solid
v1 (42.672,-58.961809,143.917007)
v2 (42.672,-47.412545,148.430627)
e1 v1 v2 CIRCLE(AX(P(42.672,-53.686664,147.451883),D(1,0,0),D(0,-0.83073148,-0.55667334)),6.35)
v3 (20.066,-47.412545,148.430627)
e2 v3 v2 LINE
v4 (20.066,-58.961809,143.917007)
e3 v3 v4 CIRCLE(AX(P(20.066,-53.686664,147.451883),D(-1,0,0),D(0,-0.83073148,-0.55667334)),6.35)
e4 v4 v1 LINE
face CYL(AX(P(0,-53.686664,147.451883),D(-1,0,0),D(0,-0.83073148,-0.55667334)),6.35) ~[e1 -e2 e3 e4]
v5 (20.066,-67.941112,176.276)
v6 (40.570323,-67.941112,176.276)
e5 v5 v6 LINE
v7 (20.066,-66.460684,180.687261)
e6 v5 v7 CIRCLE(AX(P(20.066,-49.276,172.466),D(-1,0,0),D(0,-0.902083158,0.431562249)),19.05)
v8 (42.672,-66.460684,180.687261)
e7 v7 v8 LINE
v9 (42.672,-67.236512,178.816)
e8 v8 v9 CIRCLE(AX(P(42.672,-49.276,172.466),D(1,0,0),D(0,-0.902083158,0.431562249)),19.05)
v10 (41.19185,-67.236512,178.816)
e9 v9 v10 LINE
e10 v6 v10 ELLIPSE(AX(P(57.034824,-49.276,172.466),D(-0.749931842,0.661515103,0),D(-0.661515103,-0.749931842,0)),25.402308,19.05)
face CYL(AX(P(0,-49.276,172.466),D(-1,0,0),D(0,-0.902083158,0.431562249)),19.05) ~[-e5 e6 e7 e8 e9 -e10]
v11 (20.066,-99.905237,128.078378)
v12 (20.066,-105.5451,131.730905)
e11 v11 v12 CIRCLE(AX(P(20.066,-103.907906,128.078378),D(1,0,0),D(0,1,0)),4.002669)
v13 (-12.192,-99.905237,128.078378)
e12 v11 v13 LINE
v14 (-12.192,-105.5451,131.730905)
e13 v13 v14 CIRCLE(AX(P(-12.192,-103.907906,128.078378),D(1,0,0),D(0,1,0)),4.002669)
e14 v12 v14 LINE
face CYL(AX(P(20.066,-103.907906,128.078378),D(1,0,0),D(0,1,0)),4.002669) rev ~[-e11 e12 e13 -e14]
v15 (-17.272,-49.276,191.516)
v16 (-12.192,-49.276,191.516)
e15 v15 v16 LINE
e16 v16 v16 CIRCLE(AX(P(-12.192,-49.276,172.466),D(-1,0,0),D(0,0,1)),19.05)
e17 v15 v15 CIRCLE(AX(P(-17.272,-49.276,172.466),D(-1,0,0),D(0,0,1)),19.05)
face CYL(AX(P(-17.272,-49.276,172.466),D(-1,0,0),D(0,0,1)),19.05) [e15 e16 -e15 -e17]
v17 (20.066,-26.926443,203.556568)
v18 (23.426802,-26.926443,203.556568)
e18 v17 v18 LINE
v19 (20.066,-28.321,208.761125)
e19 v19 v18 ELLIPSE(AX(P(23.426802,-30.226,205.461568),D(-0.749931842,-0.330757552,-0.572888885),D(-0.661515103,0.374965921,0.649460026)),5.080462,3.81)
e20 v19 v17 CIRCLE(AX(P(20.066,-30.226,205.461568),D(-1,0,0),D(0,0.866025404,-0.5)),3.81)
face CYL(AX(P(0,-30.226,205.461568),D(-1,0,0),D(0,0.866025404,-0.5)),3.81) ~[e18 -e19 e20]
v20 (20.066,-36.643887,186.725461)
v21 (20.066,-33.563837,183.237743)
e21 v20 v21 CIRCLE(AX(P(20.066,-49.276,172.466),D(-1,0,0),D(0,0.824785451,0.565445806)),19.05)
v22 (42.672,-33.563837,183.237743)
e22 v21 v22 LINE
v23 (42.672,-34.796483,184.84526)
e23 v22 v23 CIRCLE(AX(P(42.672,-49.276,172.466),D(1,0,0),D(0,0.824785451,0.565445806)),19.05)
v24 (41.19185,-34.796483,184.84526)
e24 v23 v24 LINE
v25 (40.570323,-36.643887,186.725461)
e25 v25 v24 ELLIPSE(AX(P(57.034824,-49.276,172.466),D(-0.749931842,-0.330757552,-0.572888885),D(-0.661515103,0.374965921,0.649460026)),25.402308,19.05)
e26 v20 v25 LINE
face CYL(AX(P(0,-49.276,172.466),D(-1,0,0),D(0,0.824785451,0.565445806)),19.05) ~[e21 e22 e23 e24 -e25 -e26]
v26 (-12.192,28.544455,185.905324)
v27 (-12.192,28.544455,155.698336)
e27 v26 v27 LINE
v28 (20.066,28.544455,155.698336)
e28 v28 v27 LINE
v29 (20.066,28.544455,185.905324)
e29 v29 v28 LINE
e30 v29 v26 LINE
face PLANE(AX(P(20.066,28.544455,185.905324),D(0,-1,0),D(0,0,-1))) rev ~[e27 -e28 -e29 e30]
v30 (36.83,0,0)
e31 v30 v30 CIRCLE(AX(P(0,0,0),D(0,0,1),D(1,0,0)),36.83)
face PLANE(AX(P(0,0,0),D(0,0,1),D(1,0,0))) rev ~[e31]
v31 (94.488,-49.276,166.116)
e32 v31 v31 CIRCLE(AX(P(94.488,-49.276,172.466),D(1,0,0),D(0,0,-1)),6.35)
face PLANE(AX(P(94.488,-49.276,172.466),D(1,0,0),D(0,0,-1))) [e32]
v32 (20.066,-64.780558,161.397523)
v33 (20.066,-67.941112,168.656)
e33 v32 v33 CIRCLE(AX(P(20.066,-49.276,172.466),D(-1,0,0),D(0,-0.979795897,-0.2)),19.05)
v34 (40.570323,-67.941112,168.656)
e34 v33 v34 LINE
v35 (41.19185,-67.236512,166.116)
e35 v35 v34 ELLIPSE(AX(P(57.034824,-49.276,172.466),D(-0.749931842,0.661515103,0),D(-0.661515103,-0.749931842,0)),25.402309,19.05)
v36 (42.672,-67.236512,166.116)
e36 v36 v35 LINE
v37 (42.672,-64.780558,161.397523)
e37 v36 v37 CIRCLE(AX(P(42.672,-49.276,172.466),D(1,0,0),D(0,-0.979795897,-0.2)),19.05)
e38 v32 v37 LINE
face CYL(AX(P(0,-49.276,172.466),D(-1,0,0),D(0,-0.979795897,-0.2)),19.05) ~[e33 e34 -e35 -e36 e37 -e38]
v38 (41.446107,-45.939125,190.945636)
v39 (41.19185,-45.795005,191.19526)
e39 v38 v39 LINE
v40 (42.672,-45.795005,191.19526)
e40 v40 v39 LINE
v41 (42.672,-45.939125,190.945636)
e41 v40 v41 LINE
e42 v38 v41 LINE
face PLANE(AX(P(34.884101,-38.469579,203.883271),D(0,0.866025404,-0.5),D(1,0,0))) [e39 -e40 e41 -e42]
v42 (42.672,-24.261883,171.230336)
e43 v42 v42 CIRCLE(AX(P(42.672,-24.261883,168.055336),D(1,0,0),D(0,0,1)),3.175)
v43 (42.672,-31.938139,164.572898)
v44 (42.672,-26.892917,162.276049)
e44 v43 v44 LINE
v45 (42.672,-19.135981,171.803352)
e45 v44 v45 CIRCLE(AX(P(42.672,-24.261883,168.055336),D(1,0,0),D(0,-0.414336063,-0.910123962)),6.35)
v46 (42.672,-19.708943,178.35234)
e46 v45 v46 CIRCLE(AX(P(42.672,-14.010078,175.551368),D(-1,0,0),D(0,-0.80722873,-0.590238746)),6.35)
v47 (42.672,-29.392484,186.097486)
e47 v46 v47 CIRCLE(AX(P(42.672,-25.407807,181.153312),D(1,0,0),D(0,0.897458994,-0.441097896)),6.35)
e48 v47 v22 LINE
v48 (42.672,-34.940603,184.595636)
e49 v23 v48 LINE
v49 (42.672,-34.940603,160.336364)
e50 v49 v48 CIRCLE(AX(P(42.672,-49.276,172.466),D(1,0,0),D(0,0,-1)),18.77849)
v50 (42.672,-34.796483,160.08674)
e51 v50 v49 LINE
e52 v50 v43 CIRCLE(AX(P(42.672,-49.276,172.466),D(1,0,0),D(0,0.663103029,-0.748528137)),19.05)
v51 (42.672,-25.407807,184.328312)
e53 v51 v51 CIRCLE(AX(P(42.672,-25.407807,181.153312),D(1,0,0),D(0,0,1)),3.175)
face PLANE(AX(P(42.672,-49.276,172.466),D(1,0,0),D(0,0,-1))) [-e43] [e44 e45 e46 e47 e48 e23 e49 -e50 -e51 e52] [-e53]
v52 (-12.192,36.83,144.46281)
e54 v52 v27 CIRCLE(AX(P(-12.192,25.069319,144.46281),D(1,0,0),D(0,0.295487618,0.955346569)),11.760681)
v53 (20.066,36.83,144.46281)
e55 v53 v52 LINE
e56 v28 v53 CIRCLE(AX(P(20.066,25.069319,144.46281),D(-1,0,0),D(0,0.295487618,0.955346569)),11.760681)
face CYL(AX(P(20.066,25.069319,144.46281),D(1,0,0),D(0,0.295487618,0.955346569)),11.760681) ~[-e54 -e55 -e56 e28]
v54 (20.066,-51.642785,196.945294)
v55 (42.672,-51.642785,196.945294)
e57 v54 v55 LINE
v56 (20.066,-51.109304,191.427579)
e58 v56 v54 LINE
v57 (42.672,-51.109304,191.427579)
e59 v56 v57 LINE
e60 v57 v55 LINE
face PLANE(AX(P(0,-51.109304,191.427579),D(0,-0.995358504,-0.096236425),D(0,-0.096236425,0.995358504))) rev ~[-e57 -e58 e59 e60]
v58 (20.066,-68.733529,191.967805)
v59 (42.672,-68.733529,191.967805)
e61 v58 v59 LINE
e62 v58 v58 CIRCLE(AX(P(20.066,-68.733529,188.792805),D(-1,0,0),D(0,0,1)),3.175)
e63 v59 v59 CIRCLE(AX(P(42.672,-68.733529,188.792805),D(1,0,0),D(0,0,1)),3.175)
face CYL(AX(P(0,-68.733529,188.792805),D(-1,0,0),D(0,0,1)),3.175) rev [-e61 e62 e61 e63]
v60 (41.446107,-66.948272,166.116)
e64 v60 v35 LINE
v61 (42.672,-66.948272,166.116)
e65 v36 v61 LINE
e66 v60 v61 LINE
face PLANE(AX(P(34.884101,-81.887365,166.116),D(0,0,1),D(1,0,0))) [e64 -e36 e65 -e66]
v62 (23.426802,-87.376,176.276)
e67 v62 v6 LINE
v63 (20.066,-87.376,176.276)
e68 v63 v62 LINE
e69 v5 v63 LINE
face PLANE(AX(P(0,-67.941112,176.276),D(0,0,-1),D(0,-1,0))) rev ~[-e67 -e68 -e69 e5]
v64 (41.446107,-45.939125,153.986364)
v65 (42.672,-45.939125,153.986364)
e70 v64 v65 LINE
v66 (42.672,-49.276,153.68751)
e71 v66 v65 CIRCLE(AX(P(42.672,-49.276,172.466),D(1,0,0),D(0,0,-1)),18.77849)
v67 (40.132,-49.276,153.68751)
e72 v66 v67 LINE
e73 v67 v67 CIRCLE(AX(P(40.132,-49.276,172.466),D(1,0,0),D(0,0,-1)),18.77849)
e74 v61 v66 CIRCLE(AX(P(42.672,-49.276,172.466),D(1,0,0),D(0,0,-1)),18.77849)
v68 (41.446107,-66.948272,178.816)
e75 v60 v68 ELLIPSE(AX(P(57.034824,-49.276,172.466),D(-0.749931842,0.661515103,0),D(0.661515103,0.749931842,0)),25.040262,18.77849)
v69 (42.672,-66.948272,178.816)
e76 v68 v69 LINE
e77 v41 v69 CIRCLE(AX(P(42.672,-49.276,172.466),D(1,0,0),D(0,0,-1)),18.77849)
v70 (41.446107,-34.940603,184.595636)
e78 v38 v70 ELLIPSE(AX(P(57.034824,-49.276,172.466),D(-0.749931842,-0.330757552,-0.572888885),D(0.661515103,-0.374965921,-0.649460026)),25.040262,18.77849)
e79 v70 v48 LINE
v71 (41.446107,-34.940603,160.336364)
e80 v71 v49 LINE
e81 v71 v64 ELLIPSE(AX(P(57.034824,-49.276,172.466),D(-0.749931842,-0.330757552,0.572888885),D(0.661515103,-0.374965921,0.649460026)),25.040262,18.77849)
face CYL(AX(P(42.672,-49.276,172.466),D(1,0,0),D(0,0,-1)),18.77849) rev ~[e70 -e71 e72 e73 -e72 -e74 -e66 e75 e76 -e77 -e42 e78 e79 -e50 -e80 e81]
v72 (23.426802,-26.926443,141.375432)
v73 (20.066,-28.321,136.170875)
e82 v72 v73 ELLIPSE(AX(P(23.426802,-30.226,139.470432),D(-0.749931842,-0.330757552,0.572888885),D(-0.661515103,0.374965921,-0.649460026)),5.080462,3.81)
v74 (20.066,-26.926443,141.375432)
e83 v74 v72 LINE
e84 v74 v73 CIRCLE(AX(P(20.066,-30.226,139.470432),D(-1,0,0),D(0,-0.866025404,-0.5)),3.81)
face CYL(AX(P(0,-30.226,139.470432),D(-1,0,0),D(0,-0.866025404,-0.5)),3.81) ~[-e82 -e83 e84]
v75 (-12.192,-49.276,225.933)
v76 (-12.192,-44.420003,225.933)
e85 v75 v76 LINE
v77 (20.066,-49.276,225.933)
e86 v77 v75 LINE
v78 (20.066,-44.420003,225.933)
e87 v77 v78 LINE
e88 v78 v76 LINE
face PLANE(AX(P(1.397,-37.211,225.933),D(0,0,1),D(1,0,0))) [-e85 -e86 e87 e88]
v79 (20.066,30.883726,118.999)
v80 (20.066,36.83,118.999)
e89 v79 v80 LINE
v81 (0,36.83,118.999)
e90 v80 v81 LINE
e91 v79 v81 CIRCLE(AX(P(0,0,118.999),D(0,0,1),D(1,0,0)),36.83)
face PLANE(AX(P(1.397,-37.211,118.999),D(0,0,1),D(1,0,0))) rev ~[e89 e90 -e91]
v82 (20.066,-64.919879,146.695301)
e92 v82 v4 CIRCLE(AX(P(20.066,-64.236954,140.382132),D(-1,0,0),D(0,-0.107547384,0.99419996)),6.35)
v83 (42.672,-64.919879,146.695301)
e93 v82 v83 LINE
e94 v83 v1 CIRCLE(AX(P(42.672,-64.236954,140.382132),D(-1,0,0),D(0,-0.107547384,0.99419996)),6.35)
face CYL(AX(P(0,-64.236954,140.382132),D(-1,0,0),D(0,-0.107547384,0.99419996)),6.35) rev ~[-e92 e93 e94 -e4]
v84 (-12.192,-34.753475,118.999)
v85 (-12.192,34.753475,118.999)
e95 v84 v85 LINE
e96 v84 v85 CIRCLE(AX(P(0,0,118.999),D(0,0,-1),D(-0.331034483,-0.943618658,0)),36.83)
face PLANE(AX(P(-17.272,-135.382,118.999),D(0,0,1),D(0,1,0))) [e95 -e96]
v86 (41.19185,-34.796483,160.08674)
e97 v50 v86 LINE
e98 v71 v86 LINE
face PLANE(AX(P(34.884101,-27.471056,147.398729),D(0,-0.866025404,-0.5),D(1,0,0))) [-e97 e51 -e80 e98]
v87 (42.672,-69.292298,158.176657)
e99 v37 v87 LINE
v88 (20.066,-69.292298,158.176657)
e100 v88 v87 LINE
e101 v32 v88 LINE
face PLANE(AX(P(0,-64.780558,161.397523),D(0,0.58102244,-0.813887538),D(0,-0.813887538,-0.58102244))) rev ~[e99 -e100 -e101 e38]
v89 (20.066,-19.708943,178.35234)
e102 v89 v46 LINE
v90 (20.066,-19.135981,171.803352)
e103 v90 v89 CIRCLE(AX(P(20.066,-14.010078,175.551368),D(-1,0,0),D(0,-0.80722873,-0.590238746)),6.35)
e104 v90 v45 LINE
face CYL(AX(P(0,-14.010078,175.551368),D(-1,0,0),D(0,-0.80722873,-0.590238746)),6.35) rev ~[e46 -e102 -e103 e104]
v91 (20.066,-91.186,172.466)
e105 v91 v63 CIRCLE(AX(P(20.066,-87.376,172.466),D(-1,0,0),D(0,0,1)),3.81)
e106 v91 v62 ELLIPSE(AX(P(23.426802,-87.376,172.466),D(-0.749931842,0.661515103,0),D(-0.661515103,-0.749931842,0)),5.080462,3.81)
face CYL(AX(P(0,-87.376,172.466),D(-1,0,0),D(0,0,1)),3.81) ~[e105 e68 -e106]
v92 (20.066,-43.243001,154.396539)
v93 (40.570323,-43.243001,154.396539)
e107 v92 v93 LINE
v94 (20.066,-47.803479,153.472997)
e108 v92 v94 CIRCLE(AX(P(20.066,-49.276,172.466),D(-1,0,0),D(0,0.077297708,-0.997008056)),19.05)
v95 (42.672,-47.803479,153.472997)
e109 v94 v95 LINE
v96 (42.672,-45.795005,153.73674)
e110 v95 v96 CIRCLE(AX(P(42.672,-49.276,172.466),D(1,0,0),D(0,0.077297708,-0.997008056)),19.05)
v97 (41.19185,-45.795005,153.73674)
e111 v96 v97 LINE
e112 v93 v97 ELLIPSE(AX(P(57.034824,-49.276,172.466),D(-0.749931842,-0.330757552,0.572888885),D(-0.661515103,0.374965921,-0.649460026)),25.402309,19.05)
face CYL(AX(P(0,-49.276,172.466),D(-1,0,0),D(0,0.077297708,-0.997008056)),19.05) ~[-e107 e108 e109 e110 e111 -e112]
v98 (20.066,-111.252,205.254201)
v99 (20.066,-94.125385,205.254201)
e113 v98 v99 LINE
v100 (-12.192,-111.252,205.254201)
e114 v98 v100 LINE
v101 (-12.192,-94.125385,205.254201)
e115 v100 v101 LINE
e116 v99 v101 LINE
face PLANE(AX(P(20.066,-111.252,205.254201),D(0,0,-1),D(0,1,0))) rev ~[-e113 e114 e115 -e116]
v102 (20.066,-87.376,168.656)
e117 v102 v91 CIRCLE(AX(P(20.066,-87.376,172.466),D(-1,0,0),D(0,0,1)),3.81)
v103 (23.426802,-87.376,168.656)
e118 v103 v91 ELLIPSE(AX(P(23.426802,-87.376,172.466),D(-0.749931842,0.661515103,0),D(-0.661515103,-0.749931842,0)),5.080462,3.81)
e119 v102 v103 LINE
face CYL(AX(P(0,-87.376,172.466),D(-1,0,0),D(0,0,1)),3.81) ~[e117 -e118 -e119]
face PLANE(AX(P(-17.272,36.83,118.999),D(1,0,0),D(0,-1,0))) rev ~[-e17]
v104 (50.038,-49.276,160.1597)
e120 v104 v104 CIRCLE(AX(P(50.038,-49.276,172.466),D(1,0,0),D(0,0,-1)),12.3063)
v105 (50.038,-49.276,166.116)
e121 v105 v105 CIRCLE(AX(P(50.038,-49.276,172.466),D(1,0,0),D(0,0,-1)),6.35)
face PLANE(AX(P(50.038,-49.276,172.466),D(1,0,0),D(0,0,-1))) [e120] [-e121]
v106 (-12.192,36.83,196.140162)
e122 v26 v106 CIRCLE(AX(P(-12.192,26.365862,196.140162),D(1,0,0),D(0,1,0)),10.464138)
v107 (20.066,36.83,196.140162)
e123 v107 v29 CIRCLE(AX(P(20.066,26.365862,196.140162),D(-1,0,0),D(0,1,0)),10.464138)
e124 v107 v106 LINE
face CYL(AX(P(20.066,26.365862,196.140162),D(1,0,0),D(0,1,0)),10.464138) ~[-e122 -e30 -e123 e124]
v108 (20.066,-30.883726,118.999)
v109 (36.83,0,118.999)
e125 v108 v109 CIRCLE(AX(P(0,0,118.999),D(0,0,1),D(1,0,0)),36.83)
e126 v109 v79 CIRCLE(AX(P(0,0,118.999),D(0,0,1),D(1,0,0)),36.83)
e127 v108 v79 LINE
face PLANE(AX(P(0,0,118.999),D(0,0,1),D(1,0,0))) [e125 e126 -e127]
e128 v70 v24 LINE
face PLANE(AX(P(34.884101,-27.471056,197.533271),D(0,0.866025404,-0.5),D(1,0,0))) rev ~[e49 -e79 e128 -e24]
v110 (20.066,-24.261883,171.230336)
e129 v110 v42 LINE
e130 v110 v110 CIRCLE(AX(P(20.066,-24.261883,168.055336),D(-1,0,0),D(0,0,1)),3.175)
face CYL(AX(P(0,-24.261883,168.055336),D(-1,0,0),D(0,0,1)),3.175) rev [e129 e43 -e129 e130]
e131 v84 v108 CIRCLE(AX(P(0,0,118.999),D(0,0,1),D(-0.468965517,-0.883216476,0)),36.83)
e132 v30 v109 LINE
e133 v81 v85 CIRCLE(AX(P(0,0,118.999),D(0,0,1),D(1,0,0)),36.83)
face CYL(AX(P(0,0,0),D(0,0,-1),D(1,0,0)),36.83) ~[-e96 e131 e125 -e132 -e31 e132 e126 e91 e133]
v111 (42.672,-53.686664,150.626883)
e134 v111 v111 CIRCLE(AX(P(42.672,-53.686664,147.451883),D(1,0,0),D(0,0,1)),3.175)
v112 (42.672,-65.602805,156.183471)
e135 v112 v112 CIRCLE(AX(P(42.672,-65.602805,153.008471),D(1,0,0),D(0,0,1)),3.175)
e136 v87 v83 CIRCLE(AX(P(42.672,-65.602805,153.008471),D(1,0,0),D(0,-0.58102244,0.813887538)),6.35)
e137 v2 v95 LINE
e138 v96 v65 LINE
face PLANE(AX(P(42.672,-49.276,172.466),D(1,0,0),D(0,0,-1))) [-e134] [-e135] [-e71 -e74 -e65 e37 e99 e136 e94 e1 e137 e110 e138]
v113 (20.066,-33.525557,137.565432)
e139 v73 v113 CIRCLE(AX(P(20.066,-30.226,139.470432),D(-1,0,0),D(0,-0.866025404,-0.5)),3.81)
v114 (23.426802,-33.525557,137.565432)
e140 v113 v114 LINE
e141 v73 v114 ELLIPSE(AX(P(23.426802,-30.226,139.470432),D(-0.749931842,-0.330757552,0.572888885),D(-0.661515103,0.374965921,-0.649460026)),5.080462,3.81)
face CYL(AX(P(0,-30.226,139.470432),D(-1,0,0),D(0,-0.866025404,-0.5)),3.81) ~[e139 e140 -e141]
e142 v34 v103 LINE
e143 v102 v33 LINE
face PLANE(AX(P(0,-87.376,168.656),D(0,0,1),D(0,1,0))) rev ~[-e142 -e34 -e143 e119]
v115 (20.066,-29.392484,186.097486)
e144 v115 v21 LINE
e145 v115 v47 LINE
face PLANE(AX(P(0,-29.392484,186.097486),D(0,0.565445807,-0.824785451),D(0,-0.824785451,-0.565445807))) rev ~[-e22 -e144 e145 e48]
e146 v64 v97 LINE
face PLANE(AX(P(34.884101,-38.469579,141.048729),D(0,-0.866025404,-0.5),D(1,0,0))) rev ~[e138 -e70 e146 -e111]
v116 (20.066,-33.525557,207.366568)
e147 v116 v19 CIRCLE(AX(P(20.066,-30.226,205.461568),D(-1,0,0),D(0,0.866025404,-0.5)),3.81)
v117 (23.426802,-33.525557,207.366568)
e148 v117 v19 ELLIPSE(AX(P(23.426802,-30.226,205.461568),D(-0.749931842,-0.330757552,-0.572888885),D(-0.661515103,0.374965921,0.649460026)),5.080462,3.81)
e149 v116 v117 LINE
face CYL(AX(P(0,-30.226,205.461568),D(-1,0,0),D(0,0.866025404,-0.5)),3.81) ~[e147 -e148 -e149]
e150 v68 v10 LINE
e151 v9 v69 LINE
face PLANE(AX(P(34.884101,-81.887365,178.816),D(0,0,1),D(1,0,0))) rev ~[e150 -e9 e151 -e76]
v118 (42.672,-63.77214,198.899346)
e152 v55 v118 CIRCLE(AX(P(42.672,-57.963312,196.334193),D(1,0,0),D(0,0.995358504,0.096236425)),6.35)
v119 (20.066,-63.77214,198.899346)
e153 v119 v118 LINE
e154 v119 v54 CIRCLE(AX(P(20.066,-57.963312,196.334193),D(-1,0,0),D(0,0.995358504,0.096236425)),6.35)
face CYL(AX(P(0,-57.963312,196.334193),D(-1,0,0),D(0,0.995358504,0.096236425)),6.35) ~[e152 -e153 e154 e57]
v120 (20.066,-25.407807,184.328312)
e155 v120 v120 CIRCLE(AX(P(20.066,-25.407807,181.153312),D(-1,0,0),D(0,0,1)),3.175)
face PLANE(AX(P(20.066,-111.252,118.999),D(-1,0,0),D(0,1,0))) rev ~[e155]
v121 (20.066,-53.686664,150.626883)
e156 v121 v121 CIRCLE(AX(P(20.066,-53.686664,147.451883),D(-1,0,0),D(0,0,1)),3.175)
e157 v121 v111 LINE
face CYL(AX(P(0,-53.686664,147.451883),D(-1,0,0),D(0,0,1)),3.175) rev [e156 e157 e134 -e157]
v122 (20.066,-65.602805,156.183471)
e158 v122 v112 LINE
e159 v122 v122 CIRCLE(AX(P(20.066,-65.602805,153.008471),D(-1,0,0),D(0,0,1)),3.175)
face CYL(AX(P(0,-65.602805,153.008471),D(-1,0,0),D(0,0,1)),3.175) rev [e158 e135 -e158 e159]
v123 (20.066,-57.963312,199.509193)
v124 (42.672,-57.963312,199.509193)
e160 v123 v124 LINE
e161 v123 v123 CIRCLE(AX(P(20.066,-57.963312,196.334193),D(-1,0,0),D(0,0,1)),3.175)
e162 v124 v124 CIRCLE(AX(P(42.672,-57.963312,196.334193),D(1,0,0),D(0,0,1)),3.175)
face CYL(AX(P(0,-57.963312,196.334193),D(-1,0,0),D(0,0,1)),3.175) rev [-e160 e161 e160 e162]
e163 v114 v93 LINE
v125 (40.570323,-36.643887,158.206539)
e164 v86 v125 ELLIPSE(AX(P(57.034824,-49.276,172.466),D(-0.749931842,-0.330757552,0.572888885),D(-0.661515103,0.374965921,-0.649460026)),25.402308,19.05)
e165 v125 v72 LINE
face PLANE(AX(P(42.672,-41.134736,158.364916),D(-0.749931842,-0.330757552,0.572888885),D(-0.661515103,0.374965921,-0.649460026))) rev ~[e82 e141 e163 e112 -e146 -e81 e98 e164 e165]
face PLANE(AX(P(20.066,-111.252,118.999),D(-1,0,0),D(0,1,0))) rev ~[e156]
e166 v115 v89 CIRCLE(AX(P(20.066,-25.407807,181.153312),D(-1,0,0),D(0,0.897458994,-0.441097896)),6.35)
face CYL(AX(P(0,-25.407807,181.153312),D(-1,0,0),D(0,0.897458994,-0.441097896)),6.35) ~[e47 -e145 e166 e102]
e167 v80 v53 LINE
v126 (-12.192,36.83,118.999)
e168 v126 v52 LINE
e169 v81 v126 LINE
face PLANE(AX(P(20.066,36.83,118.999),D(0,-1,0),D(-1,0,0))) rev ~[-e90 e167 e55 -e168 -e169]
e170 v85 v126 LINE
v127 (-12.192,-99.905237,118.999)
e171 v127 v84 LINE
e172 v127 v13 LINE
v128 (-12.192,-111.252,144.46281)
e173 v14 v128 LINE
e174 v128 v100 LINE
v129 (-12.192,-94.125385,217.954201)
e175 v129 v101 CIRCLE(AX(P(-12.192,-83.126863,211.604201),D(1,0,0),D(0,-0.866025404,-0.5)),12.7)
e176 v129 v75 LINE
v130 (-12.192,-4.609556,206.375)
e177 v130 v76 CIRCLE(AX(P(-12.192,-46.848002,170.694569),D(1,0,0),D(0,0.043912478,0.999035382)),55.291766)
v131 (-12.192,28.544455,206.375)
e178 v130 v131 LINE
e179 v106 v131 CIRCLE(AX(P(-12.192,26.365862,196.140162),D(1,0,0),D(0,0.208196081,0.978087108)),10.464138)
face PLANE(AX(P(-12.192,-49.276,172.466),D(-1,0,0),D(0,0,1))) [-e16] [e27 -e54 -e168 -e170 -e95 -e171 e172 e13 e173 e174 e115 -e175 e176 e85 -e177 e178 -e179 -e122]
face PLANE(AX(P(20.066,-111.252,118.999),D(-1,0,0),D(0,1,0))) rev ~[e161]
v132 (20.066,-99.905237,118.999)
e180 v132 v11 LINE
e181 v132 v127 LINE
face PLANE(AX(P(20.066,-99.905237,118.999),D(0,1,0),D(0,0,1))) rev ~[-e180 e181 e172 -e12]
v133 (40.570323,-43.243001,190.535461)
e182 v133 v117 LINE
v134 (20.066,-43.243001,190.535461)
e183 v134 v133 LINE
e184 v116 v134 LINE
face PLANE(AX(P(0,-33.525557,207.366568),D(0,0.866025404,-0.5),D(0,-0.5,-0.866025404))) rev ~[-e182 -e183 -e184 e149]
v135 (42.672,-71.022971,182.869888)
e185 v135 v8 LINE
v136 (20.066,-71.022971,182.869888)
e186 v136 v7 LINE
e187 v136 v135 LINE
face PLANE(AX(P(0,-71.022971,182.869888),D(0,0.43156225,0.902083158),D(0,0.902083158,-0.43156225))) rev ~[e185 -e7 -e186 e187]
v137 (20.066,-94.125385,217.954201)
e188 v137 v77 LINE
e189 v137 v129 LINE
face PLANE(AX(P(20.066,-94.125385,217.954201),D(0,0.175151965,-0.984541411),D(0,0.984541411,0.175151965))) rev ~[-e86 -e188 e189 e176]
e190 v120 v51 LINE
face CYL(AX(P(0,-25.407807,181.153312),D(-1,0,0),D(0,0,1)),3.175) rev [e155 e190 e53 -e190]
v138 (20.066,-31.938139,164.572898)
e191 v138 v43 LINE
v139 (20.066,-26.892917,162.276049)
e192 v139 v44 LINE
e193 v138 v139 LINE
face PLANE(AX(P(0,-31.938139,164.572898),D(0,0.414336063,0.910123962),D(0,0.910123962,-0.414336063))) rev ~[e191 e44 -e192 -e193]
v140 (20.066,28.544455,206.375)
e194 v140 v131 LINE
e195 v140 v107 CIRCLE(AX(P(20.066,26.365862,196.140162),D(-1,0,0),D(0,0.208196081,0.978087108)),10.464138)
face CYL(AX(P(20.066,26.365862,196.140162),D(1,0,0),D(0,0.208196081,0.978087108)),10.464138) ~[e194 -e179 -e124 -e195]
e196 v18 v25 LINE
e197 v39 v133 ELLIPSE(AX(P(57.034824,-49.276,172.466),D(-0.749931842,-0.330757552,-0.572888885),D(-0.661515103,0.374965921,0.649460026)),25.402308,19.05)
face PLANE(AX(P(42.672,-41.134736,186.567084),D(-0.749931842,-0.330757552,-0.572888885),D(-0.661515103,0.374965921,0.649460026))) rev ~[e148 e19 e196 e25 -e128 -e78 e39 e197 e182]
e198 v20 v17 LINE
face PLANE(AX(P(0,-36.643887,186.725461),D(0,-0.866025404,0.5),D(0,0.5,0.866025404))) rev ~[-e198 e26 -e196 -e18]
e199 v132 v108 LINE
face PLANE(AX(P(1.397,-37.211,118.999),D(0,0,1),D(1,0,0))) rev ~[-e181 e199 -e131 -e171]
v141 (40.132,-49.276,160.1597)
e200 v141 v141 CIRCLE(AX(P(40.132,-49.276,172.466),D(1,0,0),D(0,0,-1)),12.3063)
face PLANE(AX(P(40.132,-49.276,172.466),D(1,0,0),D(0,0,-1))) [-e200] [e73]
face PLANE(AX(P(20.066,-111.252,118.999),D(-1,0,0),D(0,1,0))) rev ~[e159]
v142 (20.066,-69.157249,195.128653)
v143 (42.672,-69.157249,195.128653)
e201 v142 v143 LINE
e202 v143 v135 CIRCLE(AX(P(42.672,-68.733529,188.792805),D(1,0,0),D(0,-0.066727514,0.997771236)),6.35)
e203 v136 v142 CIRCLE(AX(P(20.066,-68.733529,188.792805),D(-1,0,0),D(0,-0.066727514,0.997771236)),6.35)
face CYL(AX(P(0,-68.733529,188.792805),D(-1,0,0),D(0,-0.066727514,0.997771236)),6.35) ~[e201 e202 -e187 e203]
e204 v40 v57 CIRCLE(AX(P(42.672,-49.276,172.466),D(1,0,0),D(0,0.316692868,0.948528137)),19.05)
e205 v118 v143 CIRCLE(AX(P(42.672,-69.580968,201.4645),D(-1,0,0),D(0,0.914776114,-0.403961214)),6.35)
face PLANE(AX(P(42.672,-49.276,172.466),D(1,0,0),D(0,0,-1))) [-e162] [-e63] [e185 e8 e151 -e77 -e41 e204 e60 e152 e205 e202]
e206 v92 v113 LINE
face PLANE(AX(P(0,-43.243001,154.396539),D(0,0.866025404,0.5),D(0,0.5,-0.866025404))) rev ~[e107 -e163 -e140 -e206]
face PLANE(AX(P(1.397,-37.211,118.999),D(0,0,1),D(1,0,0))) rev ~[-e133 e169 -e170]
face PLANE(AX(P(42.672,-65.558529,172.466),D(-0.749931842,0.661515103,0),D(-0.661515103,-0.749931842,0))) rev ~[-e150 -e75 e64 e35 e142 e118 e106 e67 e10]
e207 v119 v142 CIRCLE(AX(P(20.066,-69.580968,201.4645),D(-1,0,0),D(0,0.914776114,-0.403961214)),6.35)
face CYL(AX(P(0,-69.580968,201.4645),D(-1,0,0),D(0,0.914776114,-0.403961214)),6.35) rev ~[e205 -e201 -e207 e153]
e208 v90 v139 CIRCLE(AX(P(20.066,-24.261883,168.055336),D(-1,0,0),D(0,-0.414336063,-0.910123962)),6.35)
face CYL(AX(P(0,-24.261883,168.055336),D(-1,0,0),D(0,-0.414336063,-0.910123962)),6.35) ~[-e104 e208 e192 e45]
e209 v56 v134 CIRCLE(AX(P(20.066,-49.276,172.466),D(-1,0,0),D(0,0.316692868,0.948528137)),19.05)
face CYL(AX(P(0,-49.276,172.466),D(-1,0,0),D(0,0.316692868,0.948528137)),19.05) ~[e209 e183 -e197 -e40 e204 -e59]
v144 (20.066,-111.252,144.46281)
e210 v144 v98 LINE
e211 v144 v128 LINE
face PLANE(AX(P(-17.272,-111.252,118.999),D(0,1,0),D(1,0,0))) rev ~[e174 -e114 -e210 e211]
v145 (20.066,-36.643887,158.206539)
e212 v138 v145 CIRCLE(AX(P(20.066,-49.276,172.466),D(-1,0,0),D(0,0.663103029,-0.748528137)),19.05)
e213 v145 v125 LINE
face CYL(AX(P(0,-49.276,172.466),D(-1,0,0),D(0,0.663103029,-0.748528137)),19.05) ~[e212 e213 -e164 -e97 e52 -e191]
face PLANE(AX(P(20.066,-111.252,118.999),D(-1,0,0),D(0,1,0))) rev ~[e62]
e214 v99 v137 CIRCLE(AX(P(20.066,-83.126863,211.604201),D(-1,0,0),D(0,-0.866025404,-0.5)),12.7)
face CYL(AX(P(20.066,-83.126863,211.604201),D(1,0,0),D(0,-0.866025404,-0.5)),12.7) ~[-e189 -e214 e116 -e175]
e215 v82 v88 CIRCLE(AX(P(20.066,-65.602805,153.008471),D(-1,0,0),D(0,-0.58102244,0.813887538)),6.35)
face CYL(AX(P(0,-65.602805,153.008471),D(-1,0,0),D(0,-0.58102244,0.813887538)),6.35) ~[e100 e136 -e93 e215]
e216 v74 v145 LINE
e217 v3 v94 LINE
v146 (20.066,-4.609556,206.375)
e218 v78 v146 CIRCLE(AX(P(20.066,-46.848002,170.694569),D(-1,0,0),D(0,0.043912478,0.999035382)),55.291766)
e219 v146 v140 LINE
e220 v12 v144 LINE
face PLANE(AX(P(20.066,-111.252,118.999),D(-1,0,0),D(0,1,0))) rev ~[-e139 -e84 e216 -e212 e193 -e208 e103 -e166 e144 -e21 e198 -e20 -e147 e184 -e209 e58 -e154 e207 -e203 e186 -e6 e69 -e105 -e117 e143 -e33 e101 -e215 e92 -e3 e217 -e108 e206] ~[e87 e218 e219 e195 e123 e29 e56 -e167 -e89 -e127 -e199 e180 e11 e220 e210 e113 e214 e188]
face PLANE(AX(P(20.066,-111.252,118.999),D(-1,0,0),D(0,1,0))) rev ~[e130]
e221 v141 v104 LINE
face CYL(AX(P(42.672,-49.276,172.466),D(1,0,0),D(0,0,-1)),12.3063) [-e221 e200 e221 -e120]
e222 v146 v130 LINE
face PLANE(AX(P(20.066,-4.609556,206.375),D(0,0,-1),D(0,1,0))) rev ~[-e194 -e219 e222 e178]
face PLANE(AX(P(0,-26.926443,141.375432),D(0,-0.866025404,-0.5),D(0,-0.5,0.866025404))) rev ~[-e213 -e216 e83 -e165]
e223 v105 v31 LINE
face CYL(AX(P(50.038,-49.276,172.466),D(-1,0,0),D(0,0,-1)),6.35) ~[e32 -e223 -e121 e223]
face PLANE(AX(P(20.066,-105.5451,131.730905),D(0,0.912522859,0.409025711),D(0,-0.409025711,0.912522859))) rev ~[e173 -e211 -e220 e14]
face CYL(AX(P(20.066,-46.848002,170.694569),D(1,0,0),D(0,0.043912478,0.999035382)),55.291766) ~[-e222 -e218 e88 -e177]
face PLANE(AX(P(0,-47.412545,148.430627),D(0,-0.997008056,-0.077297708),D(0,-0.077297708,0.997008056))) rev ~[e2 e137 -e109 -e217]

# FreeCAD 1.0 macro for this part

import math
import FreeCAD as App
import Part
import Sketcher

V = App.Vector
Q = App.Units.Quantity

doc = App.newDocument("Part")
body = doc.addObject("PartDesign::Body", "Body")

sketch1 = body.newObject("Sketcher::SketchObject", "Sketch")
sketch1.AttachmentSupport = (doc.getObject("XY_Plane"), [""])
sketch1.MapMode = "FlatFace"
sketch1.addGeometry(Part.Circle(V(0, 0, 0), V(0, 0, 1), 37), False)
sketch1.addConstraint([
    Sketcher.Constraint("Coincident", 0, 3, -1, 1),
    Sketcher.Constraint("Diameter", 0, Q("2.9 in")),
])
pad1 = body.newObject("PartDesign::Pad", "Pad")
pad1.Profile = sketch1
pad1.Length = Q("4.685 in")

sketch2 = body.newObject("Sketcher::SketchObject", "Sketch001")
sketch2.AttachmentSupport = (doc.getObject("XY_Plane"), [""])
sketch2.MapMode = "FlatFace"
sketch2.AttachmentOffset = App.Placement(V(0, 0, 4.685 * 25.4), App.Rotation())
sketch2.addGeometry([
    Part.LineSegment(V(-17, -111, 0), V(20, -111, 0)),
    Part.LineSegment(V(20, -111, 0), V(20, 37, 0)),
    Part.LineSegment(V(20, 37, 0), V(-17, 37, 0)),
    Part.LineSegment(V(-17, 37, 0), V(-17, -111, 0)),
], False)
sketch2.addConstraint([
    Sketcher.Constraint("Coincident", 0, 2, 1, 1),
    Sketcher.Constraint("Coincident", 1, 2, 2, 1),
    Sketcher.Constraint("Coincident", 2, 2, 3, 1),
    Sketcher.Constraint("Coincident", 3, 2, 0, 1),
    Sketcher.Constraint("Horizontal", 0),
    Sketcher.Constraint("Vertical", 1),
    Sketcher.Constraint("Horizontal", 2),
    Sketcher.Constraint("Vertical", 3),
    Sketcher.Constraint("DistanceX", 0, 1, 0, 2, Q("1.47 in")),
    Sketcher.Constraint("DistanceY", 1, 1, 1, 2, Q("5.83 in")),
    Sketcher.Constraint("DistanceX", -1, 1, 0, 2, Q("0.79 in")),
    Sketcher.Constraint("DistanceY", 0, 2, -1, 1, Q("4.38 in")),
])
pad2 = body.newObject("PartDesign::Pad", "Pad001")
pad2.Profile = sketch2
pad2.Length = Q("4.21 in")

sketch3 = body.newObject("Sketcher::SketchObject", "Sketch002")
sketch3.AttachmentSupport = (doc.getObject("YZ_Plane"), [""])
sketch3.MapMode = "FlatFace"
sketch3.addGeometry([
    Part.LineSegment(V(-64.8, 161.4, 0), V(-69.3, 158.2, 0)),
    Part.ArcOfCircle(Part.Circle(V(-65.6, 153, 0), V(0, 0, 1), 6.3), math.radians(126), math.radians(276)),
    Part.ArcOfCircle(Part.Circle(V(-64.2, 140.4, 0), V(0, 0, 1), 6.3), math.radians(34), math.radians(96)),
    Part.ArcOfCircle(Part.Circle(V(-53.7, 147.5, 0), V(0, 0, 1), 6.3), math.radians(-146), math.radians(9)),
    Part.LineSegment(V(-47.4, 148.4, 0), V(-47.8, 153.5, 0)),
    Part.ArcOfCircle(Part.Circle(V(-49.3, 172.5, 0), V(0, 0, 1), 19.1), math.radians(-85.57), math.radians(-71.54)),
    Part.LineSegment(V(-43.2, 154.4, 0), V(-33.5, 137.6, 0)),
    Part.ArcOfCircle(Part.Circle(V(-30.2, 139.5, 0), V(0, 0, 1), 3.8), math.radians(-150), math.radians(30)),
    Part.LineSegment(V(-26.9, 141.4, 0), V(-36.6, 158.2, 0)),
    Part.ArcOfCircle(Part.Circle(V(-49.3, 172.5, 0), V(0, 0, 1), 19.1), math.radians(-48), math.radians(-24)),
    Part.LineSegment(V(-31.9, 164.6, 0), V(-26.9, 162.3, 0)),
    Part.ArcOfCircle(Part.Circle(V(-24.3, 168.1, 0), V(0, 0, 1), 6.3), math.radians(-114), math.radians(36)),
    Part.ArcOfCircle(Part.Circle(V(-14, 175.6, 0), V(0, 0, 1), 6.3), math.radians(154), math.radians(216)),
    Part.ArcOfCircle(Part.Circle(V(-25.4, 181.2, 0), V(0, 0, 1), 6.3), math.radians(-26), math.radians(129)),
    Part.LineSegment(V(-29.4, 186.1, 0), V(-33.6, 183.2, 0)),
    Part.ArcOfCircle(Part.Circle(V(-49.3, 172.5, 0), V(0, 0, 1), 19), math.radians(34.43), math.radians(48.46)),
    Part.LineSegment(V(-36.6, 186.7, 0), V(-26.9, 203.6, 0)),
    Part.ArcOfCircle(Part.Circle(V(-30.2, 205.5, 0), V(0, 0, 1), 3.8), math.radians(-30), math.radians(150)),
    Part.LineSegment(V(-33.5, 207.4, 0), V(-43.2, 190.5, 0)),
    Part.ArcOfCircle(Part.Circle(V(-49.3, 172.5, 0), V(0, 0, 1), 19.1), math.radians(72), math.radians(96)),
    Part.LineSegment(V(-51.1, 191.4, 0), V(-51.6, 196.9, 0)),
    Part.ArcOfCircle(Part.Circle(V(-58, 196.3, 0), V(0, 0, 1), 6.3), math.radians(6), math.radians(156)),
    Part.ArcOfCircle(Part.Circle(V(-69.6, 201.5, 0), V(0, 0, 1), 6.3), math.radians(-86), math.radians(-24)),
    Part.ArcOfCircle(Part.Circle(V(-68.7, 188.8, 0), V(0, 0, 1), 6.3), math.radians(94), math.radians(249)),
    Part.LineSegment(V(-71, 182.9, 0), V(-66.5, 180.7, 0)),
    Part.ArcOfCircle(Part.Circle(V(-49.3, 172.5, 0), V(0, 0, 1), 19.1), math.radians(154.43), math.radians(168.46)),
    Part.LineSegment(V(-67.9, 176.3, 0), V(-87.4, 176.3, 0)),
    Part.ArcOfCircle(Part.Circle(V(-87.4, 172.5, 0), V(0, 0, 1), 3.8), math.radians(90), math.radians(270)),
    Part.LineSegment(V(-87.4, 168.7, 0), V(-67.9, 168.7, 0)),
    Part.ArcOfCircle(Part.Circle(V(-49.3, 172.5, 0), V(0, 0, 1), 19.1), math.radians(-168), math.radians(-144)),
    Part.Circle(V(-68.7, 188.8, 0), V(0, 0, 1), 3.2),
    Part.Circle(V(-58, 196.3, 0), V(0, 0, 1), 3.2),
    Part.Circle(V(-65.6, 153, 0), V(0, 0, 1), 3.2),
    Part.Circle(V(-53.7, 147.5, 0), V(0, 0, 1), 3.2),
    Part.Circle(V(-25.4, 181.2, 0), V(0, 0, 1), 3.2),
    Part.Circle(V(-24.3, 168.1, 0), V(0, 0, 1), 3.2),
], False)
sketch3.addConstraint([
    Sketcher.Constraint("Tangent", 0, 2, 1, 1),
    Sketcher.Constraint("Tangent", 1, 2, 2, 2),
    Sketcher.Constraint("Tangent", 2, 1, 3, 1),
    Sketcher.Constraint("Coincident", 3, 2, 4, 1),
    Sketcher.Constraint("Coincident", 4, 2, 5, 1),
    Sketcher.Constraint("Coincident", 5, 2, 6, 1),
    Sketcher.Constraint("Tangent", 6, 2, 7, 1),
    Sketcher.Constraint("Tangent", 7, 2, 8, 1),
    Sketcher.Constraint("Coincident", 8, 2, 9, 1),
    Sketcher.Constraint("Coincident", 9, 2, 10, 1),
    Sketcher.Constraint("Tangent", 10, 2, 11, 1),
    Sketcher.Constraint("Tangent", 11, 2, 12, 2),
    Sketcher.Constraint("Tangent", 12, 1, 13, 1),
    Sketcher.Constraint("Coincident", 13, 2, 14, 1),
    Sketcher.Constraint("Coincident", 14, 2, 15, 1),
    Sketcher.Constraint("Coincident", 15, 2, 16, 1),
    Sketcher.Constraint("Tangent", 16, 2, 17, 1),
    Sketcher.Constraint("Tangent", 17, 2, 18, 1),
    Sketcher.Constraint("Coincident", 18, 2, 19, 1),
    Sketcher.Constraint("Coincident", 19, 2, 20, 1),
    Sketcher.Constraint("Tangent", 20, 2, 21, 1),
    Sketcher.Constraint("Tangent", 21, 2, 22, 2),
    Sketcher.Constraint("Tangent", 22, 1, 23, 1),
    Sketcher.Constraint("Coincident", 23, 2, 24, 1),
    Sketcher.Constraint("Coincident", 24, 2, 25, 1),
    Sketcher.Constraint("Coincident", 25, 2, 26, 1),
    Sketcher.Constraint("Tangent", 26, 2, 27, 1),
    Sketcher.Constraint("Tangent", 27, 2, 28, 1),
    Sketcher.Constraint("Coincident", 28, 2, 29, 1),
    Sketcher.Constraint("Coincident", 29, 2, 0, 1),
    Sketcher.Constraint("Horizontal", 26),
    Sketcher.Constraint("Horizontal", 28),
    Sketcher.Constraint("Coincident", 9, 3, 5, 3),
    Sketcher.Constraint("Coincident", 15, 3, 5, 3),
    Sketcher.Constraint("Coincident", 19, 3, 5, 3),
    Sketcher.Constraint("Coincident", 25, 3, 5, 3),
    Sketcher.Constraint("Coincident", 29, 3, 5, 3),
    Sketcher.Constraint("Coincident", 30, 3, 23, 3),
    Sketcher.Constraint("Coincident", 31, 3, 21, 3),
    Sketcher.Constraint("Coincident", 32, 3, 1, 3),
    Sketcher.Constraint("Coincident", 33, 3, 3, 3),
    Sketcher.Constraint("Coincident", 34, 3, 13, 3),
    Sketcher.Constraint("Coincident", 35, 3, 11, 3),
    Sketcher.Constraint("Equal", 1, 2),
    Sketcher.Constraint("Equal", 2, 3),
    Sketcher.Constraint("Equal", 5, 9),
    Sketcher.Constraint("Equal", 3, 11),
    Sketcher.Constraint("Equal", 11, 12),
    Sketcher.Constraint("Equal", 12, 13),
    Sketcher.Constraint("Equal", 9, 15),
    Sketcher.Constraint("Equal", 7, 17),
    Sketcher.Constraint("Equal", 15, 19),
    Sketcher.Constraint("Equal", 13, 21),
    Sketcher.Constraint("Equal", 21, 22),
    Sketcher.Constraint("Equal", 22, 23),
    Sketcher.Constraint("Equal", 19, 25),
    Sketcher.Constraint("Equal", 17, 27),
    Sketcher.Constraint("Equal", 25, 29),
    Sketcher.Constraint("Equal", 30, 31),
    Sketcher.Constraint("Equal", 31, 32),
    Sketcher.Constraint("Equal", 32, 33),
    Sketcher.Constraint("Equal", 33, 34),
    Sketcher.Constraint("Equal", 34, 35),
    Sketcher.Constraint("Parallel", 6, 8),
    Sketcher.Constraint("Parallel", 16, 18),
    Sketcher.Constraint("Horizontal", 25, 3, 27, 3),
    Sketcher.Constraint("Vertical", 7, 3, 17, 3),
    Sketcher.Constraint("Vertical", 8, 2, 15, 2),
    Sketcher.Constraint("Vertical", 7, 2, 16, 2),
    Sketcher.Constraint("Equal", 6, 8),
    Sketcher.Constraint("Equal", 0, 10),
    Sketcher.Constraint("Equal", 4, 14),
    Sketcher.Constraint("Equal", 10, 20),
    Sketcher.Constraint("Equal", 14, 24),
    Sketcher.Constraint("Diameter", 30, Q("0.25 in")),
    Sketcher.Constraint("Radius", 1, Q("0.25 in")),
    Sketcher.Constraint("Radius", 5, Q("0.75 in")),
    Sketcher.Constraint("Radius", 7, Q("0.15 in")),
    Sketcher.Constraint("Angle", 6, Q("-60 deg")),
    Sketcher.Constraint("DistanceX", 27, 3, 5, 3, Q("1.5 in")),
    Sketcher.Constraint("DistanceX", 5, 3, -1, 1, Q("1.94 in")),
    Sketcher.Constraint("DistanceY", -1, 1, 5, 3, Q("6.79 in")),
    Sketcher.Constraint("DistanceX", 7, 3, -1, 1, Q("1.19 in")),
    Sketcher.Constraint("DistanceY", 2, 3, 1, 3, Q("0.4971 in")),
    Sketcher.Constraint("DistanceX", 20, 2, 18, 2, Q("0.3307002 in")),
    Sketcher.Constraint("Distance", 4, 5.057501),
    Sketcher.Constraint("DistanceY", -1, 1, 22, 3, 201.4645),
    Sketcher.Constraint("DistanceY", -1, 1, 1, 2, 146.695301),
    Sketcher.Constraint("DistanceY", 12, 3, 17, 3, 29.9102),
    Sketcher.Constraint("DistanceY", 31, 3, 20, 2, 0.611101),
    Sketcher.Constraint("DistanceX", 12, 3, -1, 1, 14.010078),
    Sketcher.Constraint("DistanceY", -1, 1, 13, 3, 181.153312),
    Sketcher.Constraint("DistanceX", 22, 3, -1, 1, 69.580968),
    Sketcher.Constraint("DistanceX", 23, 3, -1, 1, 68.733529),
    Sketcher.Constraint("DistanceX", 1, 2, -1, 1, 64.919879),
    Sketcher.Constraint("DistanceX", 2, 1, -1, 1, 58.961809),
    Sketcher.Constraint("DistanceX", 4, 2, -1, 1, 47.803479),
    Sketcher.Constraint("DistanceX", 9, 2, -1, 1, 31.938139),
    Sketcher.Constraint("DistanceY", -1, 1, 24, 2, 180.687261),
    Sketcher.Constraint("DistanceX", 14, 2, 13, 3, 8.15603),
])
pad3 = body.newObject("PartDesign::Pad", "Pad002")
pad3.Profile = sketch3
pad3.Length = Q("1.68 in")

sketch4 = body.newObject("Sketcher::SketchObject", "Sketch003")
sketch4.AttachmentSupport = (doc.getObject("YZ_Plane"), [""])
sketch4.MapMode = "FlatFace"
sketch4.AttachmentOffset = App.Placement(V(0, 0, 1.68 * 25.4), App.Rotation())
sketch4.addGeometry(Part.Circle(V(-49, 172, 0), V(0, 0, 1), 12), False)
sketch4.addConstraint([
    Sketcher.Constraint("Diameter", 0, Q("0.969 in")),
    Sketcher.Constraint("DistanceX", 0, 3, -1, 1, Q("1.94 in")),
    Sketcher.Constraint("DistanceY", -1, 1, 0, 3, Q("6.79 in")),
])
pad4 = body.newObject("PartDesign::Pad", "Pad003")
pad4.Profile = sketch4
pad4.Length = Q("0.29 in")

sketch5 = body.newObject("Sketcher::SketchObject", "Sketch004")
sketch5.AttachmentSupport = (doc.getObject("YZ_Plane"), [""])
sketch5.MapMode = "FlatFace"
sketch5.AttachmentOffset = App.Placement(V(0, 0, 1.97 * 25.4), App.Rotation())
sketch5.addGeometry(Part.Circle(V(-49, 172, 0), V(0, 0, 1), 6), False)
sketch5.addConstraint([
    Sketcher.Constraint("Diameter", 0, Q("0.5 in")),
    Sketcher.Constraint("DistanceX", 0, 3, -1, 1, Q("1.94 in")),
    Sketcher.Constraint("DistanceY", -1, 1, 0, 3, Q("6.79 in")),
])
pad5 = body.newObject("PartDesign::Pad", "Pad004")
pad5.Profile = sketch5
pad5.Length = Q("1.75 in")

sketch6 = body.newObject("Sketcher::SketchObject", "Sketch005")
sketch6.AttachmentSupport = (doc.getObject("XY_Plane"), [""])
sketch6.MapMode = "FlatFace"
sketch6.AttachmentOffset = App.Placement(V(0, 0, 6.79 * 25.4), App.Rotation())
sketch6.addGeometry([
    Part.LineSegment(V(43, -91, 0), V(43, -66, 0)),
    Part.LineSegment(V(43, -66, 0), V(20, -91, 0)),
    Part.LineSegment(V(20, -91, 0), V(43, -91, 0)),
], False)
sketch6.addConstraint([
    Sketcher.Constraint("Coincident", 0, 2, 1, 1),
    Sketcher.Constraint("Coincident", 1, 2, 2, 1),
    Sketcher.Constraint("Coincident", 2, 2, 0, 1),
    Sketcher.Constraint("Vertical", 0),
    Sketcher.Constraint("Horizontal", 2),
    Sketcher.Constraint("DistanceX", 2, 1, 2, 2, Q("0.89 in")),
    Sketcher.Constraint("DistanceX", -1, 1, 0, 2, Q("1.68 in")),
    Sketcher.Constraint("DistanceY", 1, 2, -1, 1, Q("3.59 in")),
    Sketcher.Constraint("DistanceY", 0, 1, 0, 2, 25.627471),
])
pocket1 = body.newObject("PartDesign::Pocket", "Pocket")
pocket1.Profile = sketch6
pocket1.Length = Q("0.5 in")
pocket1.Midplane = True
doc.recompute()

datumline = body.newObject("PartDesign::Line", "DatumLine")
datumline.Placement = App.Placement(V(0, -49.276, 172.466), App.Rotation(V(0, 0, 1), V(1, 0, 0)))
polarpattern = body.newObject("PartDesign::PolarPattern", "PolarPattern")
polarpattern.Originals = [pocket1]
polarpattern.Axis = (datumline, [""])
polarpattern.Angle = 360
polarpattern.Occurrences = 3
body.Tip = polarpattern

sketch7 = body.newObject("Sketcher::SketchObject", "Sketch006")
sketch7.AttachmentSupport = (doc.getObject("YZ_Plane"), [""])
sketch7.MapMode = "FlatFace"
sketch7.AttachmentOffset = App.Placement(V(0, 0, 1.68 * 25.4), App.Rotation())
sketch7.addGeometry([
    Part.Circle(V(-49, 172, 0), V(0, 0, 1), 19),
    Part.Circle(V(-49, 172, 0), V(0, 0, 1), 12),
], False)
sketch7.addConstraint([
    Sketcher.Constraint("Coincident", 1, 3, 0, 3),
    Sketcher.Constraint("Diameter", 1, Q("0.969 in")),
    Sketcher.Constraint("DistanceX", 0, 3, -1, 1, Q("1.94 in")),
    Sketcher.Constraint("DistanceY", -1, 1, 0, 3, Q("6.79 in")),
    Sketcher.Constraint("Diameter", 0, 37.55698),
])
pocket2 = body.newObject("PartDesign::Pocket", "Pocket001")
pocket2.Profile = sketch7
pocket2.Length = Q("0.1 in")

sketch8 = body.newObject("Sketcher::SketchObject", "Sketch007")
sketch8.AttachmentSupport = (doc.getObject("YZ_Plane"), [""])
sketch8.MapMode = "FlatFace"
sketch8.AttachmentOffset = App.Placement(V(0, 0, 0.79 * 25.4), App.Rotation())
sketch8.addGeometry([
    Part.ArcOfCircle(Part.Circle(V(26.4, 196.1, 0), V(0, 0, 1), 10.5), math.radians(-78), math.radians(0)),
    Part.LineSegment(V(28.5, 185.9, 0), V(28.5, 155.7, 0)),
    Part.ArcOfCircle(Part.Circle(V(25.1, 144.5, 0), V(0, 0, 1), 11.8), math.radians(0), math.radians(73)),
    Part.LineSegment(V(36.8, 144.5, 0), V(36.8, 119, 0)),
    Part.LineSegment(V(36.8, 119, 0), V(50.6, 119, 0)),
    Part.LineSegment(V(50.6, 119, 0), V(47.4, 241.5, 0)),
    Part.LineSegment(V(47.4, 241.5, 0), V(-133.5, 248.2, 0)),
    Part.LineSegment(V(-133.5, 248.2, 0), V(-130.6, 101.2, 0)),
    Part.LineSegment(V(-130.6, 101.2, 0), V(-40.7, 97.9, 0)),
    Part.LineSegment(V(-40.7, 97.9, 0), V(-36.8, 119, 0)),
    Part.LineSegment(V(-36.8, 119, 0), V(-99.9, 119, 0)),
    Part.LineSegment(V(-99.9, 119, 0), V(-99.9, 128.1, 0)),
    Part.ArcOfCircle(Part.Circle(V(-103.9, 128.1, 0), V(0, 0, 1), 4), math.radians(0), math.radians(114)),
    Part.LineSegment(V(-105.5, 131.7, 0), V(-111.3, 144.5, 0)),
    Part.LineSegment(V(-111.3, 144.5, 0), V(-111.3, 205.3, 0)),
    Part.LineSegment(V(-111.3, 205.3, 0), V(-94.1, 205.3, 0)),
    Part.ArcOfCircle(Part.Circle(V(-83.1, 211.6, 0), V(0, 0, 1), 12.7), math.radians(150), math.radians(210)),
    Part.LineSegment(V(-94.1, 218, 0), V(-49.3, 225.9, 0)),
    Part.ArcOfCircle(Part.Circle(V(-46.8, 170.7, 0), V(0, 0, 1), 55.3), math.radians(87.48), math.radians(92.52)),
    Part.ArcOfCircle(Part.Circle(V(-46.8, 170.7, 0), V(0, 0, 1), 55.3), math.radians(40), math.radians(87)),
    Part.LineSegment(V(-4.6, 206.4, 0), V(28.5, 206.4, 0)),
    Part.ArcOfCircle(Part.Circle(V(26.4, 196.1, 0), V(0, 0, 1), 10.5), math.radians(0), math.radians(78)),
], False)
sketch8.addConstraint([
    Sketcher.Constraint("Coincident", 0, 1, 1, 1),
    Sketcher.Constraint("Coincident", 1, 2, 2, 2),
    Sketcher.Constraint("Tangent", 2, 1, 3, 1),
    Sketcher.Constraint("Coincident", 3, 2, 4, 1),
    Sketcher.Constraint("Coincident", 4, 2, 5, 1),
    Sketcher.Constraint("Coincident", 5, 2, 6, 1),
    Sketcher.Constraint("Coincident", 6, 2, 7, 1),
    Sketcher.Constraint("Coincident", 7, 2, 8, 1),
    Sketcher.Constraint("Coincident", 8, 2, 9, 1),
    Sketcher.Constraint("Coincident", 9, 2, 10, 1),
    Sketcher.Constraint("Coincident", 10, 2, 11, 1),
    Sketcher.Constraint("Tangent", 11, 2, 12, 1),
    Sketcher.Constraint("Coincident", 12, 2, 13, 1),
    Sketcher.Constraint("Coincident", 13, 2, 14, 1),
    Sketcher.Constraint("Coincident", 14, 2, 15, 1),
    Sketcher.Constraint("Coincident", 15, 2, 16, 2),
    Sketcher.Constraint("Coincident", 16, 1, 17, 1),
    Sketcher.Constraint("Coincident", 17, 2, 18, 2),
    Sketcher.Constraint("Tangent", 18, 1, 19, 2),
    Sketcher.Constraint("Coincident", 19, 1, 20, 1),
    Sketcher.Constraint("Coincident", 20, 2, 21, 2),
    Sketcher.Constraint("Tangent", 21, 1, 0, 2),
    Sketcher.Constraint("Vertical", 1),
    Sketcher.Constraint("Vertical", 3),
    Sketcher.Constraint("Horizontal", 4),
    Sketcher.Constraint("Horizontal", 10),
    Sketcher.Constraint("Vertical", 11),
    Sketcher.Constraint("Vertical", 14),
    Sketcher.Constraint("Horizontal", 15),
    Sketcher.Constraint("Horizontal", 20),
    Sketcher.Constraint("Equal", 18, 19),
    Sketcher.Constraint("Equal", 0, 21),
    Sketcher.Constraint("Symmetric", 3, 2, 9, 2, -2),
    Sketcher.Constraint("Parallel", 6, 8),
    Sketcher.Constraint("Horizontal", 2, 1, 13, 2),
    Sketcher.Constraint("Horizontal", 17, 2, 18, 1),
    Sketcher.Constraint("Horizontal", 0, 3, 21, 1),
    Sketcher.Constraint("Vertical", 15, 2, 16, 1),
    Sketcher.Constraint("Vertical", 1, 2, 20, 2),
    Sketcher.Constraint("Vertical", 3, 2, 21, 1),
    Sketcher.Constraint("Radius", 16, Q("0.5 in")),
    Sketcher.Constraint("DistanceY", 15, 2, 16, 1, Q("0.5 in")),
    Sketcher.Constraint("DistanceX", -1, 1, 2, 1, Q("1.45 in")),
    Sketcher.Constraint("DistanceX", 13, 2, -1, 1, Q("4.38 in")),
    Sketcher.Constraint("DistanceX", 17, 2, -1, 1, Q("1.94 in")),
    Sketcher.Constraint("DistanceY", 19, 1, 18, 1, Q("0.77 in")),
    Sketcher.Constraint("DistanceY", -1, 1, 3, 2, Q("4.685 in")),
    Sketcher.Constraint("DistanceY", -1, 1, 17, 2, Q("8.895 in")),
    Sketcher.Constraint("Radius", 2, 11.760681),
    Sketcher.Constraint("Radius", 12, 4.002669),
    Sketcher.Constraint("Radius", 0, 10.464138),
    Sketcher.Constraint("Radius", 18, 55.291766),
    Sketcher.Constraint("DistanceX", 0, 1, 5, 2, Q("0.7412 in")),
    Sketcher.Constraint("DistanceX", 4, 1, 4, 2, 13.817129),
    Sketcher.Constraint("DistanceX", 20, 1, 20, 2, 33.154011),
    Sketcher.Constraint("DistanceY", 3, 2, 3, 1, 25.46381),
    Sketcher.Constraint("DistanceY", 11, 1, 11, 2, 9.079378),
    Sketcher.Constraint("DistanceY", 14, 1, 14, 2, 60.791391),
    Sketcher.Constraint("DistanceX", 18, 3, -1, 1, 46.848002),
    Sketcher.Constraint("DistanceX", 12, 2, -1, 1, 105.5451),
    Sketcher.Constraint("Distance", 6, 181.03578),
    Sketcher.Constraint("Distance", 8, 89.945331),
    Sketcher.Constraint("Distance", 9, 21.489281),
    Sketcher.Constraint("Distance", 17, 45.553579),
    Sketcher.Constraint("DistanceX", 10, 2, 10, 1, 63.075237),
    Sketcher.Constraint("DistanceX", 6, 2, -1, 1, 133.54182),
    Sketcher.Constraint("DistanceY", -1, 1, 6, 2, 248.161189),
    Sketcher.Constraint("DistanceX", 8, 2, -1, 1, 40.71059),
])
pocket3 = body.newObject("PartDesign::Pocket", "Pocket002")
pocket3.Profile = sketch8
pocket3.Length = Q("2.54 in")

sketch9 = body.newObject("Sketcher::SketchObject", "Sketch008")
sketch9.AttachmentSupport = (doc.getObject("YZ_Plane"), [""])
sketch9.MapMode = "FlatFace"
sketch9.AttachmentOffset = App.Placement(V(0, 0, -0.68 * 25.4), App.Rotation())
sketch9.addGeometry([
    Part.LineSegment(V(37, 119, 0), V(-135, 119, 0)),
    Part.LineSegment(V(-135, 119, 0), V(-135, 226, 0)),
    Part.LineSegment(V(-135, 226, 0), V(37, 226, 0)),
    Part.LineSegment(V(37, 226, 0), V(37, 119, 0)),
    Part.Circle(V(-49, 172, 0), V(0, 0, 1), 19),
], False)
sketch9.addConstraint([
    Sketcher.Constraint("Coincident", 0, 2, 1, 1),
    Sketcher.Constraint("Coincident", 1, 2, 2, 1),
    Sketcher.Constraint("Coincident", 2, 2, 3, 1),
    Sketcher.Constraint("Coincident", 3, 2, 0, 1),
    Sketcher.Constraint("Horizontal", 0),
    Sketcher.Constraint("Vertical", 1),
    Sketcher.Constraint("Horizontal", 2),
    Sketcher.Constraint("Vertical", 3),
    Sketcher.Constraint("Diameter", 4, Q("1.5 in")),
    Sketcher.Constraint("DistanceX", 0, 2, 0, 1, Q("6.78 in")),
    Sketcher.Constraint("DistanceY", 1, 1, 1, 2, Q("4.21 in")),
    Sketcher.Constraint("DistanceX", 4, 3, -1, 1, Q("1.94 in")),
    Sketcher.Constraint("DistanceY", -1, 1, 4, 3, Q("6.79 in")),
    Sketcher.Constraint("DistanceX", 0, 2, -1, 1, Q("5.33 in")),
    Sketcher.Constraint("DistanceY", -1, 1, 0, 2, Q("4.685 in")),
])
pocket4 = body.newObject("PartDesign::Pocket", "Pocket003")
pocket4.Profile = sketch9
pocket4.Length = Q("0.2 in")
pocket4.Reversed = True

doc.recompute()
